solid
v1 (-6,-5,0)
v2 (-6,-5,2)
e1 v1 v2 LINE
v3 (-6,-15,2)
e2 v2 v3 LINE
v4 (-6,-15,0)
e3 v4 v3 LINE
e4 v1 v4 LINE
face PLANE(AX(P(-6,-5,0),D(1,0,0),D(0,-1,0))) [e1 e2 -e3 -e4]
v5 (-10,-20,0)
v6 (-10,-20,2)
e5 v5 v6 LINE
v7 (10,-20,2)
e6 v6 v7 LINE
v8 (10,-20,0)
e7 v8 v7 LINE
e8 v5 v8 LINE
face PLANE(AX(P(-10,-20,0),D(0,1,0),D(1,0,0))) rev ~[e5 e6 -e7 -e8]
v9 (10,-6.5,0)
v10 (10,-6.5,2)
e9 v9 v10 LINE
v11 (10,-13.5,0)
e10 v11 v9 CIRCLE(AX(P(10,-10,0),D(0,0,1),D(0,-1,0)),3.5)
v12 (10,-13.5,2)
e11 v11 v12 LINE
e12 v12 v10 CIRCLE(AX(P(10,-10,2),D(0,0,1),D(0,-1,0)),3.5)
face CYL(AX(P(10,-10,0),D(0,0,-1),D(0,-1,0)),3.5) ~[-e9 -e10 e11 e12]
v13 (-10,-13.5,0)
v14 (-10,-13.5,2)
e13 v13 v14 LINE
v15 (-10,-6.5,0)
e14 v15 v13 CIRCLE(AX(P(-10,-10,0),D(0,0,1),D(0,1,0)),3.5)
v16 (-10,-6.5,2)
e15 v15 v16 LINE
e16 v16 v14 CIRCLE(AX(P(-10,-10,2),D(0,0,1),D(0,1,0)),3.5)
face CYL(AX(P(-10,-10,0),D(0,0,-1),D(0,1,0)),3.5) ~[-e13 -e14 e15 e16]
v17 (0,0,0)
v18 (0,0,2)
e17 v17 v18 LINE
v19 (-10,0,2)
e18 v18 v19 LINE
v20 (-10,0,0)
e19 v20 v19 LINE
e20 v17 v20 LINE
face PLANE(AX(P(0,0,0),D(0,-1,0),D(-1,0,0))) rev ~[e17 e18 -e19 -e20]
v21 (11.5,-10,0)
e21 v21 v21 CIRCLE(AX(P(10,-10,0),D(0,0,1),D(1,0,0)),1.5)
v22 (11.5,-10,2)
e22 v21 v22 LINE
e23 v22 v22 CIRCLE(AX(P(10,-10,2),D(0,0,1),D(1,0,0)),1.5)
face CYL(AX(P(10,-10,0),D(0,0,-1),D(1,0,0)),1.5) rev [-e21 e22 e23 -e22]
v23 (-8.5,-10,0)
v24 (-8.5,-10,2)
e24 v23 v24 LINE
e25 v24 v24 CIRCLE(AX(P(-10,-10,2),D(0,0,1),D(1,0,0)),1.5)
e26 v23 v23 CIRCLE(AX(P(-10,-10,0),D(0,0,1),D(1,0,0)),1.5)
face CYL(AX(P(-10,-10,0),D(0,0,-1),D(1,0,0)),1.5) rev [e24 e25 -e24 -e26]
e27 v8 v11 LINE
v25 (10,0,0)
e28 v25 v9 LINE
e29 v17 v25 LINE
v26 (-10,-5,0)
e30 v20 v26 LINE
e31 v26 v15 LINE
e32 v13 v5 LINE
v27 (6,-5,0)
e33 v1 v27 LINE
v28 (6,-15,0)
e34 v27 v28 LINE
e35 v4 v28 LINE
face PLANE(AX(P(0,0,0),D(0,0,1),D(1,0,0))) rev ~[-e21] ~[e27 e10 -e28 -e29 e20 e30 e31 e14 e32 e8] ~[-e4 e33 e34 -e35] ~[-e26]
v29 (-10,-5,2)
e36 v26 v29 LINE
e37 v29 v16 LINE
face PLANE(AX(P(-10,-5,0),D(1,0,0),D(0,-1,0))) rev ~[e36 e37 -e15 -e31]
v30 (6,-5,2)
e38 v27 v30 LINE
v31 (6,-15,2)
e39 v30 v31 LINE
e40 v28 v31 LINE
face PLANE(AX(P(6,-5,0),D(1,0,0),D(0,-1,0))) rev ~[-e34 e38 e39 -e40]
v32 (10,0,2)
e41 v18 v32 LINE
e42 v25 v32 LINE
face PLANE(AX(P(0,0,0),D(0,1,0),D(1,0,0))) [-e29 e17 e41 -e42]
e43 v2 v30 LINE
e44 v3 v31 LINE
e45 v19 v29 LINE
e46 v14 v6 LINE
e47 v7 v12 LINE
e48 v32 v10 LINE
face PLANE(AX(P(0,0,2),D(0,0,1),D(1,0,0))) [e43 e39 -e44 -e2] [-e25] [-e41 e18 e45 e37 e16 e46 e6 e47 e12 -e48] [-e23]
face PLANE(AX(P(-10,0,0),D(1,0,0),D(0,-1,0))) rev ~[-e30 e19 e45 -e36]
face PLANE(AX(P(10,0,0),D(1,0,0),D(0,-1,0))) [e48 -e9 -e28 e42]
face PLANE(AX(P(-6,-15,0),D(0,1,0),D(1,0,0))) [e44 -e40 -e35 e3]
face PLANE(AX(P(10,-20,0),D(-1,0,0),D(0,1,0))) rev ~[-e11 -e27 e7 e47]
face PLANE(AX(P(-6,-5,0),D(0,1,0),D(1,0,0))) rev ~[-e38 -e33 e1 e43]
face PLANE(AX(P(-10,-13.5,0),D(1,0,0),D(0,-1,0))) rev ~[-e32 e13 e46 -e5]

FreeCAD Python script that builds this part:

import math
import FreeCAD as App
import Part
import Sketcher
Q = App.Units.Quantity


def add_polygon(sketch, points):
    """Adds a closed chain of lines whose ends are joined by coincident constraints."""
    first, n = sketch.GeometryCount, len(points)
    for a, b in zip(points, points[1:] + points[:1]):
        sketch.addGeometry(Part.LineSegment(App.Vector(*a, 0), App.Vector(*b, 0)), False)
    for i in range(n):
        sketch.addConstraint(Sketcher.Constraint("Coincident", first + i, 2, first + (i + 1) % n, 1))

doc = App.newDocument("Part")
body = doc.addObject("PartDesign::Body", "Body")

# Sketch on XY plane
sketch1 = doc.addObject("Sketcher::SketchObject", "Sketch")
body.addObject(sketch1)
sketch1.AttachmentSupport = (doc.XY_Plane, [""])
sketch1.MapMode = "FlatFace"
sketch1.addGeometry(Part.LineSegment(App.Vector(10, 0, 0), App.Vector(-10, 0, 0)), False)  # 0
sketch1.addGeometry(Part.LineSegment(App.Vector(-10, 0, 0), App.Vector(-10, -6.5, 0)), False)  # 1
sketch1.addGeometry(Part.ArcOfCircle(Part.Circle(App.Vector(-10, -10, 0), App.Vector(0, 0, 1), 3.5), math.radians(90), math.radians(270)), False)  # 2
sketch1.addGeometry(Part.LineSegment(App.Vector(-10, -13.5, 0), App.Vector(-10, -20, 0)), False)  # 3
sketch1.addGeometry(Part.LineSegment(App.Vector(-10, -20, 0), App.Vector(10, -20, 0)), False)  # 4
sketch1.addGeometry(Part.LineSegment(App.Vector(10, -20, 0), App.Vector(10, -13.5, 0)), False)  # 5
sketch1.addGeometry(Part.ArcOfCircle(Part.Circle(App.Vector(10, -10, 0), App.Vector(0, 0, 1), 3.5), math.radians(-90), math.radians(90)), False)  # 6
sketch1.addGeometry(Part.LineSegment(App.Vector(10, -6.5, 0), App.Vector(10, 0, 0)), False)  # 7
sketch1.addGeometry(Part.Circle(App.Vector(-10, -10, 0), App.Vector(0, 0, 1), 1.5), False)  # 8
add_polygon(sketch1, [(-6, -15), (-6, -5), (6, -5), (6, -15)])  # lines 9-12
sketch1.addGeometry(Part.Circle(App.Vector(10, -10, 0), App.Vector(0, 0, 1), 1.5), False)  # 13
sketch1.addConstraint([
    Sketcher.Constraint("Coincident", 0, 2, 1, 1),
    Sketcher.Constraint("Coincident", 1, 2, 2, 1),
    Sketcher.Constraint("Coincident", 2, 2, 3, 1),
    Sketcher.Constraint("Coincident", 3, 2, 4, 1),
    Sketcher.Constraint("Coincident", 4, 2, 5, 1),
    Sketcher.Constraint("Coincident", 5, 2, 6, 1),
    Sketcher.Constraint("Coincident", 6, 2, 7, 1),
    Sketcher.Constraint("Coincident", 7, 2, 0, 1),
    Sketcher.Constraint("Horizontal", 0),
    Sketcher.Constraint("Vertical", 1),
    Sketcher.Constraint("Vertical", 3),
    Sketcher.Constraint("Horizontal", 4),
    Sketcher.Constraint("Vertical", 5),
    Sketcher.Constraint("Vertical", 7),
    Sketcher.Constraint("Vertical", 9),
    Sketcher.Constraint("Horizontal", 10),
    Sketcher.Constraint("Vertical", 11),
    Sketcher.Constraint("Horizontal", 12),
    Sketcher.Constraint("Coincident", 8, 3, 2, 3),
    Sketcher.Constraint("Coincident", 13, 3, 6, 3),
    Sketcher.Constraint("Equal", 2, 6),
    Sketcher.Constraint("Equal", 8, 13),
    Sketcher.Constraint("Symmetric", 0, 2, 7, 2, -1, 1),
    Sketcher.Constraint("Symmetric", 2, 3, 6, 3, -2),
    Sketcher.Constraint("Vertical", 8, 3, 0, 2),
    Sketcher.Constraint("Vertical", 1, 2, 2, 2),
    Sketcher.Constraint("Vertical", 13, 3, 4, 2),
    Sketcher.Constraint("Equal", 1, 3),
    Sketcher.Constraint("Diameter", 8, Q("3 mm")),
    Sketcher.Constraint("Radius", 2, Q("3.5 mm")),
    Sketcher.Constraint("DistanceX", 0, 2, 0, 1, Q("20 mm")),
    Sketcher.Constraint("DistanceY", 9, 1, 9, 2, Q("10 mm")),
    Sketcher.Constraint("DistanceY", 2, 3, -1, 1, Q("10 mm")),
    Sketcher.Constraint("DistanceX", 10, 1, 10, 2, Q("12 mm")),
    Sketcher.Constraint("DistanceX", 9, 2, -1, 1, Q("6 mm")),
    Sketcher.Constraint("DistanceY", 9, 2, -1, 1, Q("5 mm")),
])
pad1 = doc.addObject("PartDesign::Pad", "Pad")
body.addObject(pad1)
pad1.Profile = sketch1
pad1.Length = 2

doc.recompute()
